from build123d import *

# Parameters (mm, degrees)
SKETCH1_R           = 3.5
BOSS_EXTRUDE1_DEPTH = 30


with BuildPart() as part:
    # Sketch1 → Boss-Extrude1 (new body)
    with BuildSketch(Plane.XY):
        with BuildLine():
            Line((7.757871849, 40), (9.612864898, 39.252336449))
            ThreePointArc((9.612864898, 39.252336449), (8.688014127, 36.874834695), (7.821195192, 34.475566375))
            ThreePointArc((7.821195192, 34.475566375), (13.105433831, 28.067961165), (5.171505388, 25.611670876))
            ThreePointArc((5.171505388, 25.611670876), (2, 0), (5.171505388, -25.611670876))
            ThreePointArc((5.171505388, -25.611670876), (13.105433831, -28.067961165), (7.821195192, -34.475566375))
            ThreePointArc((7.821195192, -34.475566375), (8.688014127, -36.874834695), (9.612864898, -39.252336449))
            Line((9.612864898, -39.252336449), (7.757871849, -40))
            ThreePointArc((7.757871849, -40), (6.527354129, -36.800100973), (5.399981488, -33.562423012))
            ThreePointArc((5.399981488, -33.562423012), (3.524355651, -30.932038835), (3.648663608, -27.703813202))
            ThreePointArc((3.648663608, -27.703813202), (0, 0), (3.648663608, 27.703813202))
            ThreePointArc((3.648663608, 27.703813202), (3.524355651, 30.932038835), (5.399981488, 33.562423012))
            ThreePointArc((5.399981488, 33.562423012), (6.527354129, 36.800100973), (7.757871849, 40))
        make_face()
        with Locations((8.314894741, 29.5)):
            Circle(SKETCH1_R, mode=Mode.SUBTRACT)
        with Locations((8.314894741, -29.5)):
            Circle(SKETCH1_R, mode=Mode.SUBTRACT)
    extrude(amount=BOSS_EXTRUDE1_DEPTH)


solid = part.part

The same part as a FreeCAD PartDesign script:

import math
import FreeCAD as App
import Part
import Sketcher
Q = App.Units.Quantity

doc = App.newDocument("Part")
body = doc.addObject("PartDesign::Body", "Body")

# Sketch on XY plane
sketch1 = doc.addObject("Sketcher::SketchObject", "Sketch")
body.addObject(sketch1)
sketch1.AttachmentSupport = (doc.XY_Plane, [""])
sketch1.MapMode = "FlatFace"
sketch1.addGeometry([
    Part.LineSegment(App.Vector(9.6, 39.3, 0), App.Vector(7.8, 40, 0)),  # 0
    Part.ArcOfCircle(Part.Circle(App.Vector(107, 0, 0), App.Vector(0, 0, 1), 107), math.radians(158.05), math.radians(161.72)),  # 1
    Part.ArcOfCircle(Part.Circle(App.Vector(8.3, 29.5, 0), App.Vector(0, 0, 1), 5), math.radians(126), math.radians(201)),  # 2
    Part.ArcOfCircle(Part.Circle(App.Vector(107, 0, 0), App.Vector(0, 0, 1), 107), math.radians(165), math.radians(195)),  # 3
    Part.ArcOfCircle(Part.Circle(App.Vector(8.3, -29.5, 0), App.Vector(0, 0, 1), 5), math.radians(159), math.radians(234)),  # 4
    Part.ArcOfCircle(Part.Circle(App.Vector(107, 0, 0), App.Vector(0, 0, 1), 107), math.radians(-161.72), math.radians(-158.05)),  # 5
    Part.LineSegment(App.Vector(7.8, -40, 0), App.Vector(9.6, -39.3, 0)),  # 6
    Part.ArcOfCircle(Part.Circle(App.Vector(107, 0, 0), App.Vector(0, 0, 1), 105), math.radians(-160.83), math.radians(-158.05)),  # 7
    Part.ArcOfCircle(Part.Circle(App.Vector(8.3, -29.5, 0), App.Vector(0, 0, 1), 5), math.radians(-96), math.radians(129)),  # 8
    Part.ArcOfCircle(Part.Circle(App.Vector(107, 0, 0), App.Vector(0, 0, 1), 105), math.radians(166), math.radians(194)),  # 9
    Part.ArcOfCircle(Part.Circle(App.Vector(8.3, 29.5, 0), App.Vector(0, 0, 1), 5), math.radians(-129), math.radians(96)),  # 10
    Part.ArcOfCircle(Part.Circle(App.Vector(107, 0, 0), App.Vector(0, 0, 1), 105), math.radians(158.05), math.radians(160.83)),  # 11
    Part.Circle(App.Vector(8.3, -29.5, 0), App.Vector(0, 0, 1), 3.5),  # 12
    Part.Circle(App.Vector(8.3, 29.5, 0), App.Vector(0, 0, 1), 3.5),  # 13
], False)
sketch1.addConstraint([
    Sketcher.Constraint("Coincident", 0, 2, 1, 1),
    Sketcher.Constraint("Coincident", 1, 2, 2, 1),
    Sketcher.Constraint("Coincident", 2, 2, 3, 1),
    Sketcher.Constraint("Coincident", 3, 2, 4, 1),
    Sketcher.Constraint("Coincident", 4, 2, 5, 1),
    Sketcher.Constraint("Coincident", 5, 2, 6, 1),
    Sketcher.Constraint("Coincident", 6, 2, 7, 2),
    Sketcher.Constraint("Coincident", 7, 1, 8, 1),
    Sketcher.Constraint("Coincident", 8, 2, 9, 2),
    Sketcher.Constraint("Coincident", 9, 1, 10, 1),
    Sketcher.Constraint("Coincident", 10, 2, 11, 2),
    Sketcher.Constraint("Coincident", 11, 1, 0, 1),
    Sketcher.Constraint("Coincident", 3, 3, 1, 3),
    Sketcher.Constraint("Coincident", 5, 3, 1, 3),
    Sketcher.Constraint("Coincident", 7, 3, 1, 3),
    Sketcher.Constraint("Coincident", 8, 3, 4, 3),
    Sketcher.Constraint("Coincident", 9, 3, 1, 3),
    Sketcher.Constraint("Coincident", 10, 3, 2, 3),
    Sketcher.Constraint("Coincident", 11, 3, 1, 3),
    Sketcher.Constraint("Coincident", 12, 3, 4, 3),
    Sketcher.Constraint("Coincident", 13, 3, 2, 3),
    Sketcher.Constraint("Equal", 1, 3),
    Sketcher.Constraint("Equal", 2, 4),
    Sketcher.Constraint("Equal", 3, 5),
    Sketcher.Constraint("Equal", 4, 8),
    Sketcher.Constraint("Equal", 7, 9),
    Sketcher.Constraint("Equal", 8, 10),
    Sketcher.Constraint("Equal", 9, 11),
    Sketcher.Constraint("Equal", 12, 13),
    Sketcher.Constraint("Symmetric", 2, 3, 4, 3, -1),
    Sketcher.Constraint("Symmetric", 0, 2, 5, 2, -1),
    Sketcher.Constraint("Vertical", 6, 2, 11, 1),
    Sketcher.Constraint("Diameter", 12, Q("7 mm")),
    Sketcher.Constraint("Radius", 1, Q("107.000001 mm")),
    Sketcher.Constraint("Radius", 2, Q("5 mm")),
    Sketcher.Constraint("Radius", 7, Q("105 mm")),
    Sketcher.Constraint("DistanceX", -1, 1, 1, 3, Q("107.000001 mm")),
    Sketcher.Constraint("DistanceY", -1, 1, 0, 2, Q("40 mm")),
    Sketcher.Constraint("DistanceY", 4, 3, 2, 3, Q("59 mm")),
    Sketcher.Constraint("DistanceX", 7, 1, 8, 3, Q("0.4937 mm")),
    Sketcher.Constraint("DistanceX", 4, 3, 6, 2, Q("1.29797 mm")),
])
pad1 = doc.addObject("PartDesign::Pad", "Pad")
body.addObject(pad1)
pad1.Profile = sketch1
pad1.Length = 30

doc.recompute()
